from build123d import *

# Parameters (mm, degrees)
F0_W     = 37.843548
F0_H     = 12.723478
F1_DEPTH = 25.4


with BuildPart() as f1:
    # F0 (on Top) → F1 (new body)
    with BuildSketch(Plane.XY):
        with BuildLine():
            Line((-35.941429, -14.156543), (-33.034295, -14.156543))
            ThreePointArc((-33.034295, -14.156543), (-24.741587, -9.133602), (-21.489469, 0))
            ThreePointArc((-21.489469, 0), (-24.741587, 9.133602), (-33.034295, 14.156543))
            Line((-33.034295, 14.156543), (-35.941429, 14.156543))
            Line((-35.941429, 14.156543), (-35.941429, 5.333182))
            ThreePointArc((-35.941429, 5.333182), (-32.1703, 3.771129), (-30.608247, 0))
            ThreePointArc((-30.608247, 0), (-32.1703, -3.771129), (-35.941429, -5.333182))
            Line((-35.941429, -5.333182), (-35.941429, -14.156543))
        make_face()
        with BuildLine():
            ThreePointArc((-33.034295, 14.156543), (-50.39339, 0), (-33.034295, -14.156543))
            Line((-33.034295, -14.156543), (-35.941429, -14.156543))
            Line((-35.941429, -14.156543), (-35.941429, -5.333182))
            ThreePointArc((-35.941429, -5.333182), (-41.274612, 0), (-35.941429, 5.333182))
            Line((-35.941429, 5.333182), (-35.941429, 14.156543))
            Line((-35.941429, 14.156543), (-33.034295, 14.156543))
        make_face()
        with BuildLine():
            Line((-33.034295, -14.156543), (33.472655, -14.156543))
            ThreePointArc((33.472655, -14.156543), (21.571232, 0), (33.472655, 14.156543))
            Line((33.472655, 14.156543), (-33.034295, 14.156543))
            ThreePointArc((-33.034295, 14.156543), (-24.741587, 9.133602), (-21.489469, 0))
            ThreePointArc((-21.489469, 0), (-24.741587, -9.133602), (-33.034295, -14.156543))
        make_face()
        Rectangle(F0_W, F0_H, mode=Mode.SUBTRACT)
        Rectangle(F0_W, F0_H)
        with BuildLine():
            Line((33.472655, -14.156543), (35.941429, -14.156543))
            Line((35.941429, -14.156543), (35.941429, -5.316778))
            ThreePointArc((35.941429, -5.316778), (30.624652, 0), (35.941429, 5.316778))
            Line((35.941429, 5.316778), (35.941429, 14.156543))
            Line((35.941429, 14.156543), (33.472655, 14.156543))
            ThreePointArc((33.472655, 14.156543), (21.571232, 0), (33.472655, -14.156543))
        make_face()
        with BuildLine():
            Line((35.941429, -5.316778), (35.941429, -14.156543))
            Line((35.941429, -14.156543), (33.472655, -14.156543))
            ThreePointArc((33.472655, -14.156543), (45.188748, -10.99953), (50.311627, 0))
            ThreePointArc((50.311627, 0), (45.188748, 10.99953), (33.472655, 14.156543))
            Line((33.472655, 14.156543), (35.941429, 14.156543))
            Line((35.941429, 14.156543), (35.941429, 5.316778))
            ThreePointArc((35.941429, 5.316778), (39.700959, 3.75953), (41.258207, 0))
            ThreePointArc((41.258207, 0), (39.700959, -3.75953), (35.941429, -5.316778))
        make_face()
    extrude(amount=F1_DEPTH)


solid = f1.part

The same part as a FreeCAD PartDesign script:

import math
import FreeCAD as App
import Part
import Sketcher

V = App.Vector
Q = App.Units.Quantity

doc = App.newDocument("Part")
params = doc.addObject("Spreadsheet::Sheet", "Params")
for row, (alias, value) in enumerate([
    ("pad1_length", "1 in"),
], start=1):
    params.set(f"A{row}", alias)
    params.set(f"B{row}", "=" + value)
    params.setAlias(f"B{row}", alias)

body = doc.addObject("PartDesign::Body", "Body")

sketch1 = doc.addObject("Sketcher::SketchObject", "Sketch")
body.addObject(sketch1)
sketch1.AttachmentSupport = (doc.XY_Plane, [""])
sketch1.MapMode = "FlatFace"
sketch1.addGeometry([
    Part.ArcOfCircle(Part.Circle(V(-36, 0, 0), V(0, 0, 1), 14), math.radians(78), math.radians(282)),
    Part.LineSegment(V(-33, -14, 0), V(33, -14, 0)),
    Part.ArcOfCircle(Part.Circle(V(36, 0, 0), V(0, 0, 1), 14), math.radians(-100), math.radians(0)),
    Part.ArcOfCircle(Part.Circle(V(36, 0, 0), V(0, 0, 1), 14), math.radians(0), math.radians(100)),
    Part.LineSegment(V(33, 14, 0), V(-33, 14, 0)),
    Part.ArcOfCircle(Part.Circle(V(36, 0, 0), V(0, 0, 1), 5), math.radians(90), math.radians(270)),
    Part.ArcOfCircle(Part.Circle(V(36, 0, 0), V(0, 0, 1), 5), math.radians(0), math.radians(90)),
    Part.ArcOfCircle(Part.Circle(V(36, 0, 0), V(0, 0, 1), 5), math.radians(-90), math.radians(0)),
    Part.ArcOfCircle(Part.Circle(V(-36, 0, 0), V(0, 0, 1), 5), math.radians(0), math.radians(90)),
    Part.ArcOfCircle(Part.Circle(V(-36, 0, 0), V(0, 0, 1), 5), math.radians(-90), math.radians(0)),
    Part.ArcOfCircle(Part.Circle(V(-36, 0, 0), V(0, 0, 1), 5), math.radians(90), math.radians(270)),
], False)
sketch1.addConstraint([
    Sketcher.Constraint("Coincident", 0, 2, 1, 1),
    Sketcher.Constraint("Coincident", 1, 2, 2, 1),
    Sketcher.Constraint("Tangent", 2, 2, 3, 1),
    Sketcher.Constraint("Coincident", 3, 2, 4, 1),
    Sketcher.Constraint("Coincident", 4, 2, 0, 1),
    Sketcher.Constraint("Tangent", 5, 1, 6, 2),
    Sketcher.Constraint("Tangent", 6, 1, 7, 2),
    Sketcher.Constraint("Tangent", 7, 1, 5, 2),
    Sketcher.Constraint("Tangent", 8, 1, 9, 2),
    Sketcher.Constraint("Tangent", 9, 1, 10, 2),
    Sketcher.Constraint("Tangent", 10, 1, 8, 2),
    Sketcher.Constraint("Horizontal", 1),
    Sketcher.Constraint("Horizontal", 4),
    Sketcher.Constraint("Coincident", 5, 3, 2, 3),
    Sketcher.Constraint("Coincident", 8, 3, 0, 3),
    Sketcher.Constraint("Equal", 2, 3),
    Sketcher.Constraint("Symmetric", 0, 3, 2, 3, -1, 1),
    Sketcher.Constraint("Symmetric", 1, 2, 3, 2, -1),
    Sketcher.Constraint("PointOnObject", 2, 2, -1),
    Sketcher.Constraint("PointOnObject", 6, 1, -1),
    Sketcher.Constraint("PointOnObject", 8, 1, -1),
    Sketcher.Constraint("Vertical", 7, 3, 5, 1),
    Sketcher.Constraint("Vertical", 5, 1, 7, 1),
    Sketcher.Constraint("Vertical", 10, 3, 9, 1),
    Sketcher.Constraint("Vertical", 9, 1, 10, 1),
    Sketcher.Constraint("Radius", 0, Q("14.45196 mm")),
    Sketcher.Constraint("Radius", 5, Q("5.316778 mm")),
    Sketcher.Constraint("Radius", 2, Q("14.370198 mm")),
    Sketcher.Constraint("Radius", 8, Q("5.333183 mm")),
    Sketcher.Constraint("DistanceX", 1, 1, 1, 2, Q("66.50695 mm")),
    Sketcher.Constraint("DistanceX", 0, 3, -1, 1, Q("35.94143 mm")),
])
pad1 = doc.addObject("PartDesign::Pad", "Pad")
body.addObject(pad1)
pad1.Profile = sketch1
pad1.setExpression("Length", "Params.pad1_length")

doc.recompute()
